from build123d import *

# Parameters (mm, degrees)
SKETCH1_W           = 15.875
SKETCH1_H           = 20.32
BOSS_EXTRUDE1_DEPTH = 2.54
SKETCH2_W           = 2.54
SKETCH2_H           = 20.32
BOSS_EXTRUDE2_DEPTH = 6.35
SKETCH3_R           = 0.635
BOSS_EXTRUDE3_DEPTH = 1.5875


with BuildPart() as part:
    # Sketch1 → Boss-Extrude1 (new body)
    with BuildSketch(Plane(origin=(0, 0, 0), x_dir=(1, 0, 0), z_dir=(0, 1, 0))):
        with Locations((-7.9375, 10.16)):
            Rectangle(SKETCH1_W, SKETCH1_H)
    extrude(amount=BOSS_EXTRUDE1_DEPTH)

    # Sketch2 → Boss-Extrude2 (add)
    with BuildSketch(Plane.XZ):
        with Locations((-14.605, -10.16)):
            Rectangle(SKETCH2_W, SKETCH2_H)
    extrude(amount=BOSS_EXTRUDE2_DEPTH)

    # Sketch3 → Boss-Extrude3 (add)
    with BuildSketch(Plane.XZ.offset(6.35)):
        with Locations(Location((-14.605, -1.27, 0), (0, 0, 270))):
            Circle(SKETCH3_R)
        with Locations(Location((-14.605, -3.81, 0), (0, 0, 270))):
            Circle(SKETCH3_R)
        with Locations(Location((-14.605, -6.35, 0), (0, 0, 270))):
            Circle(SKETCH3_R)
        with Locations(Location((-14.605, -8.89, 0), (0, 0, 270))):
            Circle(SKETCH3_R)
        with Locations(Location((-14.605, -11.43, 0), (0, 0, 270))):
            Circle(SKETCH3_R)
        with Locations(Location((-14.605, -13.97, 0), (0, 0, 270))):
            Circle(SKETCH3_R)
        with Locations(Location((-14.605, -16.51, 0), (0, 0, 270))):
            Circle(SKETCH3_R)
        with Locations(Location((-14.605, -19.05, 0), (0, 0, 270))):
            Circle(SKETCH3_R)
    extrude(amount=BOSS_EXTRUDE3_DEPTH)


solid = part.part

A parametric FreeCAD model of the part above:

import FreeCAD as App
import Part
import Sketcher
from FreeCAD import Vector
Q = App.Units.Quantity

doc = App.newDocument("Part")
params = doc.addObject("Spreadsheet::Sheet", "Params")
for row, (alias, value) in enumerate([
    ("sketch1_height", "0.8 in"),
    ("sketch1_width", "0.625 in"),
    ("pad1_length", "0.1 in"),
    ("sketch2_width", "0.1 in"),
    ("sketch2_height", "0.8 in"),
    ("pad2_length", "0.25 in"),
    ("sketch3_diameter", "0.05 in"),
    ("pad3_length", "0.0625 in"),
], start=1):
    params.set(f"A{row}", alias)
    params.set(f"B{row}", "=" + value)
    params.setAlias(f"B{row}", alias)

body = doc.addObject("PartDesign::Body", "Body")

# Sketch on XZ plane
sketch1 = body.newObject("Sketcher::SketchObject", "Sketch")
sketch1.AttachmentSupport = (doc.getObject("XZ_Plane"), [""])
sketch1.MapMode = "FlatFace"
sketch1.addGeometry([
    Part.LineSegment(Vector(-15.875, -20.32, 0), Vector(-15.875, 0, 0)),
    Part.LineSegment(Vector(-15.875, 0, 0), Vector(0, 0, 0)),
    Part.LineSegment(Vector(0, 0, 0), Vector(0, -20.32, 0)),
    Part.LineSegment(Vector(0, -20.32, 0), Vector(-15.875, -20.32, 0)),
], False)
sketch1.addConstraint([
    Sketcher.Constraint("Coincident", 0, 2, 1, 1),
    Sketcher.Constraint("Coincident", 1, 2, 2, 1),
    Sketcher.Constraint("Coincident", 2, 2, 3, 1),
    Sketcher.Constraint("Coincident", 3, 2, 0, 1),
    Sketcher.Constraint("Vertical", 0),
    Sketcher.Constraint("Horizontal", 1),
    Sketcher.Constraint("Vertical", 2),
    Sketcher.Constraint("Horizontal", 3),
    Sketcher.Constraint("Coincident", 1, 2, -1, 1),
    Sketcher.Constraint("DistanceY", 0, 1, 0, 2, Q("0.8 in")),
    Sketcher.Constraint("DistanceX", 1, 1, 1, 2, Q("0.625 in")),
])
sketch1.setExpression("Constraints[9]", "Params.sketch1_height")
sketch1.setExpression("Constraints[10]", "Params.sketch1_width")
pad1 = body.newObject("PartDesign::Pad", "Pad")
pad1.Profile = sketch1
pad1.setExpression("Length", "Params.pad1_length")
pad1.Reversed = True

# Sketch on XZ plane
sketch2 = body.newObject("Sketcher::SketchObject", "Sketch001")
sketch2.AttachmentSupport = (doc.getObject("XZ_Plane"), [""])
sketch2.MapMode = "FlatFace"
sketch2.addGeometry([
    Part.LineSegment(Vector(-15.875, 0, 0), Vector(-15.875, -20.32, 0)),
    Part.LineSegment(Vector(-15.875, -20.32, 0), Vector(-13.335, -20.32, 0)),
    Part.LineSegment(Vector(-13.335, -20.32, 0), Vector(-13.335, 0, 0)),
    Part.LineSegment(Vector(-13.335, 0, 0), Vector(-15.875, 0, 0)),
], False)
sketch2.addConstraint([
    Sketcher.Constraint("Coincident", 0, 2, 1, 1),
    Sketcher.Constraint("Coincident", 1, 2, 2, 1),
    Sketcher.Constraint("Coincident", 2, 2, 3, 1),
    Sketcher.Constraint("Coincident", 3, 2, 0, 1),
    Sketcher.Constraint("Vertical", 0),
    Sketcher.Constraint("Horizontal", 1),
    Sketcher.Constraint("Vertical", 2),
    Sketcher.Constraint("Horizontal", 3),
    Sketcher.Constraint("PointOnObject", 2, 2, -1),
    Sketcher.Constraint("DistanceX", 1, 1, 1, 2, Q("0.1 in")),
    Sketcher.Constraint("DistanceY", 0, 2, 0, 1, Q("0.8 in")),
    Sketcher.Constraint("DistanceX", 0, 2, -1, 1, Q("0.625 in")),
])
sketch2.setExpression("Constraints[9]", "Params.sketch2_width")
sketch2.setExpression("Constraints[10]", "Params.sketch2_height")
pad2 = body.newObject("PartDesign::Pad", "Pad001")
pad2.Profile = sketch2
pad2.setExpression("Length", "Params.pad2_length")

# Sketch on XZ plane
sketch3 = body.newObject("Sketcher::SketchObject", "Sketch002")
sketch3.AttachmentSupport = (doc.getObject("XZ_Plane"), [""])
sketch3.MapMode = "FlatFace"
sketch3.AttachmentOffset = App.Placement(Vector(0, 0, 0.25 * 25.4), App.Rotation())
sketch3.addGeometry([
    Part.Circle(Vector(-14.605, -1.27, 0), Vector(0, 0, 1), 0.635),  # 0
    Part.Circle(Vector(-14.605, -3.81, 0), Vector(0, 0, 1), 0.635),  # 1
    Part.Circle(Vector(-14.605, -6.35, 0), Vector(0, 0, 1), 0.635),  # 2
    Part.Circle(Vector(-14.605, -8.89, 0), Vector(0, 0, 1), 0.635),  # 3
    Part.Circle(Vector(-14.605, -11.43, 0), Vector(0, 0, 1), 0.635),  # 4
    Part.Circle(Vector(-14.605, -13.97, 0), Vector(0, 0, 1), 0.635),  # 5
    Part.Circle(Vector(-14.605, -16.51, 0), Vector(0, 0, 1), 0.635),  # 6
    Part.Circle(Vector(-14.605, -19.05, 0), Vector(0, 0, 1), 0.635),  # 7
], False)
sketch3.addConstraint([
    Sketcher.Constraint("Equal", 0, 1),
    Sketcher.Constraint("Equal", 1, 2),
    Sketcher.Constraint("Equal", 2, 3),
    Sketcher.Constraint("Equal", 3, 4),
    Sketcher.Constraint("Equal", 4, 5),
    Sketcher.Constraint("Equal", 5, 6),
    Sketcher.Constraint("Equal", 6, 7),
    Sketcher.Constraint("Vertical", 0, 3, 1, 3),
    Sketcher.Constraint("Vertical", 1, 3, 2, 3),
    Sketcher.Constraint("Vertical", 2, 3, 3, 3),
    Sketcher.Constraint("Vertical", 3, 3, 4, 3),
    Sketcher.Constraint("Vertical", 4, 3, 5, 3),
    Sketcher.Constraint("Vertical", 5, 3, 6, 3),
    Sketcher.Constraint("Vertical", 6, 3, 7, 3),
    Sketcher.Constraint("Diameter", 0, Q("0.05 in")),
    Sketcher.Constraint("DistanceY", 1, 3, 0, 3, Q("0.1 in")),
    Sketcher.Constraint("DistanceY", 2, 3, 1, 3, Q("0.1 in")),
    Sketcher.Constraint("DistanceY", 3, 3, 2, 3, Q("0.1 in")),
    Sketcher.Constraint("DistanceY", 4, 3, 3, 3, Q("0.1 in")),
    Sketcher.Constraint("DistanceY", 5, 3, 4, 3, Q("0.1 in")),
    Sketcher.Constraint("DistanceY", 6, 3, 5, 3, Q("0.1 in")),
    Sketcher.Constraint("DistanceY", 7, 3, 6, 3, Q("0.1 in")),
    Sketcher.Constraint("DistanceY", 0, 3, -1, 1, Q("0.05 in")),
    Sketcher.Constraint("DistanceX", 0, 3, -1, 1, Q("0.575 in")),
])
sketch3.setExpression("Constraints[14]", "Params.sketch3_diameter")
pad3 = body.newObject("PartDesign::Pad", "Pad002")
pad3.Profile = sketch3
pad3.setExpression("Length", "Params.pad3_length")

doc.recompute()
